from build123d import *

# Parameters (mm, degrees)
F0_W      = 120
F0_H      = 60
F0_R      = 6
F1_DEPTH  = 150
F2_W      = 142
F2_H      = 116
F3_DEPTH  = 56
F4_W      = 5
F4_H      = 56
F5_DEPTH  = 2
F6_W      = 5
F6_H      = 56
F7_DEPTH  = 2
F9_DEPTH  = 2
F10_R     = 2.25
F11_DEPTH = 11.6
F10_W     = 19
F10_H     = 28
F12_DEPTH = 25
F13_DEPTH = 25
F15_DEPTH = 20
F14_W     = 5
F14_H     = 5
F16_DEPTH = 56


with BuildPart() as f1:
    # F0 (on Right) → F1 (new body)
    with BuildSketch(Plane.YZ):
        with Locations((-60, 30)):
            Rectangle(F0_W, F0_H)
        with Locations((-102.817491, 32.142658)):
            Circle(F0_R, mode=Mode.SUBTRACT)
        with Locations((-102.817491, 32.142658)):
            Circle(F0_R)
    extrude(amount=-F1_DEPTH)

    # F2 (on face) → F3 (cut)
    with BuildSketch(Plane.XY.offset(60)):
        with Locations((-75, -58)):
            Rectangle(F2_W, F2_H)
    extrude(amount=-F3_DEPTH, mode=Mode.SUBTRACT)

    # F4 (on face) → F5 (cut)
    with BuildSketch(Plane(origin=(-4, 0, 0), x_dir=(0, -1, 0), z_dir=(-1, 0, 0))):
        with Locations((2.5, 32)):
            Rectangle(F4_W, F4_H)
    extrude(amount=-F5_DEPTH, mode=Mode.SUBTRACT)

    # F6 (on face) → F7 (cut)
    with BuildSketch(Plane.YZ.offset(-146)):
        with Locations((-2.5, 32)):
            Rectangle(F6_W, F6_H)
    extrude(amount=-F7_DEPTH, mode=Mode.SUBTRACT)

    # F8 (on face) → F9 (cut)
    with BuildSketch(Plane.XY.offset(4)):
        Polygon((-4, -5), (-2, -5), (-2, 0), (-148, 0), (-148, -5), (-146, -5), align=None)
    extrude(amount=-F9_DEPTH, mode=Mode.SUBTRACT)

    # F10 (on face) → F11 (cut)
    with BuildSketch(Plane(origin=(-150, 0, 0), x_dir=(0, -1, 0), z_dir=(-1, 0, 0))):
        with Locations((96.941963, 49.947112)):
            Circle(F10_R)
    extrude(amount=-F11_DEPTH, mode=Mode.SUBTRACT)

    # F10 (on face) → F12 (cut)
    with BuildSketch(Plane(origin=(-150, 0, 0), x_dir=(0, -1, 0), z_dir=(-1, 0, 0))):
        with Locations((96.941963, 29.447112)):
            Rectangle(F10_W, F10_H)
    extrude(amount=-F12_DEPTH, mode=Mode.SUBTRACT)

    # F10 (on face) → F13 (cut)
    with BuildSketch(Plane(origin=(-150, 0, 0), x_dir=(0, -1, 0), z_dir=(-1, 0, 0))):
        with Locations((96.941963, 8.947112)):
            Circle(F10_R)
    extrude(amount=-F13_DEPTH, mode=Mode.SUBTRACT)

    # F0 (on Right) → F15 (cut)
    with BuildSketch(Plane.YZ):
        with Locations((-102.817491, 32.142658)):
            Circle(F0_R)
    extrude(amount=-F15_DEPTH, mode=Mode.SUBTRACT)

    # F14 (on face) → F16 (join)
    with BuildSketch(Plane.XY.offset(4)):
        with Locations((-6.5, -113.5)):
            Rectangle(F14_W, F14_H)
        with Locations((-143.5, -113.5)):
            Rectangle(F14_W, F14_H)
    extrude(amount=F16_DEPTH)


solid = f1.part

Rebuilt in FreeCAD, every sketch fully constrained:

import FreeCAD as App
import Part
import Sketcher
from FreeCAD import Vector
Q = App.Units.Quantity


def add_polygon(sketch, points):
    """Adds a closed chain of lines whose ends are joined by coincident constraints."""
    first, n = sketch.GeometryCount, len(points)
    for a, b in zip(points, points[1:] + points[:1]):
        sketch.addGeometry(Part.LineSegment(App.Vector(*a, 0), App.Vector(*b, 0)), False)
    for i in range(n):
        sketch.addConstraint(Sketcher.Constraint("Coincident", first + i, 2, first + (i + 1) % n, 1))

doc = App.newDocument("Part")
params = doc.addObject("Spreadsheet::Sheet", "Params")
for row, (alias, value) in enumerate([
    ("sketch1_width", "120 mm"),
    ("sketch1_height", "60 mm"),
    ("pad1_length", "150 mm"),
    ("sketch2_width", "142 mm"),
    ("sketch2_height", "116 mm"),
    ("pocket1_length", "56 mm"),
    ("sketch3_width", "5 mm"),
    ("sketch3_height", "56 mm"),
    ("pocket2_length", "2 mm"),
    ("sketch4_width", "5 mm"),
    ("sketch4_height", "56 mm"),
    ("pocket3_length", "2 mm"),
    ("sketch5_width", "146 mm"),
    ("sketch5_height", "5 mm"),
    ("pocket4_length", "2 mm"),
    ("sketch6_diameter", "4.5 mm"),
    ("pocket5_length", "11.6 mm"),
    ("sketch7_width", "19 mm"),
    ("sketch7_height", "28 mm"),
    ("pocket6_length", "25 mm"),
    ("sketch8_diameter", "4.5 mm"),
    ("pocket7_length", "25 mm"),
    ("sketch9_diameter", "12 mm"),
    ("pocket8_length", "20 mm"),
    ("sketch10_width", "5 mm"),
    ("pad2_length", "56 mm"),
], start=1):
    params.set(f"A{row}", alias)
    params.set(f"B{row}", "=" + value)
    params.setAlias(f"B{row}", alias)

body = doc.addObject("PartDesign::Body", "Body")

# Sketch on YZ plane
sketch1 = doc.addObject("Sketcher::SketchObject", "Sketch")
body.addObject(sketch1)
sketch1.AttachmentSupport = (doc.YZ_Plane, [""])
sketch1.MapMode = "FlatFace"
add_polygon(sketch1, [(-120, 60), (-120, 0), (0, 0), (0, 60)])  # lines 0-3
sketch1.addConstraint(Sketcher.Constraint("Vertical", 0))
sketch1.addConstraint(Sketcher.Constraint("Horizontal", 1))
sketch1.addConstraint(Sketcher.Constraint("Vertical", 2))
sketch1.addConstraint(Sketcher.Constraint("Horizontal", 3))
sketch1.addConstraint(Sketcher.Constraint("Coincident", 1, 2, -1, 1))
sketch1.addConstraint(Sketcher.Constraint("DistanceX", 1, 1, 1, 2, Q("120 mm")))
sketch1.addConstraint(Sketcher.Constraint("DistanceY", 0, 2, 0, 1, Q("60 mm")))
sketch1.setExpression("Constraints[9]", "Params.sketch1_width")
sketch1.setExpression("Constraints[10]", "Params.sketch1_height")
pad1 = doc.addObject("PartDesign::Pad", "Pad")
body.addObject(pad1)
pad1.Profile = sketch1
pad1.setExpression("Length", "Params.pad1_length")
pad1.Reversed = True

# Sketch on XY plane
sketch2 = doc.addObject("Sketcher::SketchObject", "Sketch001")
body.addObject(sketch2)
sketch2.AttachmentSupport = (doc.XY_Plane, [""])
sketch2.MapMode = "FlatFace"
sketch2.AttachmentOffset = App.Placement(Vector(0, 0, 60), App.Rotation())
add_polygon(sketch2, [(-146, 0), (-146, -116), (-4, -116), (-4, 0)])  # lines 0-3
sketch2.addConstraint(Sketcher.Constraint("Vertical", 0))
sketch2.addConstraint(Sketcher.Constraint("Horizontal", 1))
sketch2.addConstraint(Sketcher.Constraint("Vertical", 2))
sketch2.addConstraint(Sketcher.Constraint("Horizontal", 3))
sketch2.addConstraint(Sketcher.Constraint("PointOnObject", 2, 2, -1))
sketch2.addConstraint(Sketcher.Constraint("DistanceX", 1, 1, 1, 2, Q("142 mm")))
sketch2.addConstraint(Sketcher.Constraint("DistanceY", 0, 2, 0, 1, Q("116 mm")))
sketch2.addConstraint(Sketcher.Constraint("DistanceX", 0, 2, -1, 1, Q("146 mm")))
sketch2.setExpression("Constraints[9]", "Params.sketch2_width")
sketch2.setExpression("Constraints[10]", "Params.sketch2_height")
pocket1 = doc.addObject("PartDesign::Pocket", "Pocket")
body.addObject(pocket1)
pocket1.Profile = sketch2
pocket1.setExpression("Length", "Params.pocket1_length")

# Sketch on YZ plane
sketch3 = doc.addObject("Sketcher::SketchObject", "Sketch002")
body.addObject(sketch3)
sketch3.AttachmentSupport = (doc.YZ_Plane, [""])
sketch3.MapMode = "FlatFace"
sketch3.AttachmentOffset = App.Placement(Vector(0, 0, -4), App.Rotation())
add_polygon(sketch3, [(0, 60), (0, 4), (-5, 4), (-5, 60)])  # lines 0-3
sketch3.addConstraint(Sketcher.Constraint("Vertical", 0))
sketch3.addConstraint(Sketcher.Constraint("Horizontal", 1))
sketch3.addConstraint(Sketcher.Constraint("Vertical", 2))
sketch3.addConstraint(Sketcher.Constraint("Horizontal", 3))
sketch3.addConstraint(Sketcher.Constraint("PointOnObject", 0, 2, -2))
sketch3.addConstraint(Sketcher.Constraint("DistanceX", 1, 2, 1, 1, Q("5 mm")))
sketch3.addConstraint(Sketcher.Constraint("DistanceY", 0, 2, 0, 1, Q("56 mm")))
sketch3.addConstraint(Sketcher.Constraint("DistanceY", -1, 1, 0, 2, Q("4 mm")))
sketch3.setExpression("Constraints[9]", "Params.sketch3_width")
sketch3.setExpression("Constraints[10]", "Params.sketch3_height")
pocket2 = doc.addObject("PartDesign::Pocket", "Pocket001")
body.addObject(pocket2)
pocket2.Profile = sketch3
pocket2.setExpression("Length", "Params.pocket2_length")
pocket2.Reversed = True

# Sketch on YZ plane
sketch4 = doc.addObject("Sketcher::SketchObject", "Sketch003")
body.addObject(sketch4)
sketch4.AttachmentSupport = (doc.YZ_Plane, [""])
sketch4.MapMode = "FlatFace"
sketch4.AttachmentOffset = App.Placement(Vector(0, 0, -146), App.Rotation())
add_polygon(sketch4, [(-5, 60), (-5, 4), (0, 4), (0, 60)])  # lines 0-3
sketch4.addConstraint(Sketcher.Constraint("Vertical", 0))
sketch4.addConstraint(Sketcher.Constraint("Horizontal", 1))
sketch4.addConstraint(Sketcher.Constraint("Vertical", 2))
sketch4.addConstraint(Sketcher.Constraint("Horizontal", 3))
sketch4.addConstraint(Sketcher.Constraint("PointOnObject", 1, 2, -2))
sketch4.addConstraint(Sketcher.Constraint("DistanceX", 1, 1, 1, 2, Q("5 mm")))
sketch4.addConstraint(Sketcher.Constraint("DistanceY", 0, 2, 0, 1, Q("56 mm")))
sketch4.addConstraint(Sketcher.Constraint("DistanceY", -1, 1, 0, 2, Q("4 mm")))
sketch4.setExpression("Constraints[9]", "Params.sketch4_width")
sketch4.setExpression("Constraints[10]", "Params.sketch4_height")
pocket3 = doc.addObject("PartDesign::Pocket", "Pocket002")
body.addObject(pocket3)
pocket3.Profile = sketch4
pocket3.setExpression("Length", "Params.pocket3_length")

# Sketch on XY plane
sketch5 = doc.addObject("Sketcher::SketchObject", "Sketch004")
body.addObject(sketch5)
sketch5.AttachmentSupport = (doc.XY_Plane, [""])
sketch5.MapMode = "FlatFace"
sketch5.AttachmentOffset = App.Placement(Vector(0, 0, 4), App.Rotation())
add_polygon(sketch5, [(-2, -5), (-2, 0), (-148, 0), (-148, -5)])  # lines 0-3
sketch5.addConstraint(Sketcher.Constraint("Vertical", 0))
sketch5.addConstraint(Sketcher.Constraint("Horizontal", 1))
sketch5.addConstraint(Sketcher.Constraint("Vertical", 2))
sketch5.addConstraint(Sketcher.Constraint("Horizontal", 3))
sketch5.addConstraint(Sketcher.Constraint("PointOnObject", 0, 2, -1))
sketch5.addConstraint(Sketcher.Constraint("DistanceX", 1, 2, 1, 1, Q("146 mm")))
sketch5.addConstraint(Sketcher.Constraint("DistanceY", 0, 1, 0, 2, Q("5 mm")))
sketch5.addConstraint(Sketcher.Constraint("DistanceX", 0, 2, -1, 1, Q("2 mm")))
sketch5.setExpression("Constraints[9]", "Params.sketch5_width")
sketch5.setExpression("Constraints[10]", "Params.sketch5_height")
pocket4 = doc.addObject("PartDesign::Pocket", "Pocket003")
body.addObject(pocket4)
pocket4.Profile = sketch5
pocket4.setExpression("Length", "Params.pocket4_length")

# Sketch on YZ plane
sketch6 = doc.addObject("Sketcher::SketchObject", "Sketch005")
body.addObject(sketch6)
sketch6.AttachmentSupport = (doc.YZ_Plane, [""])
sketch6.MapMode = "FlatFace"
sketch6.AttachmentOffset = App.Placement(Vector(0, 0, -150), App.Rotation())
sketch6.addGeometry(Part.Circle(Vector(-96.941963, 49.947112, 0), Vector(0, 0, 1), 2.25), False)
sketch6.addConstraint(Sketcher.Constraint("Diameter", 0, Q("4.5 mm")))
sketch6.addConstraint(Sketcher.Constraint("DistanceY", -1, 1, 0, 3, Q("49.947112 mm")))
sketch6.addConstraint(Sketcher.Constraint("DistanceX", 0, 3, -1, 1, Q("96.941963 mm")))
sketch6.setExpression("Constraints[0]", "Params.sketch6_diameter")
pocket5 = doc.addObject("PartDesign::Pocket", "Pocket004")
body.addObject(pocket5)
pocket5.Profile = sketch6
pocket5.setExpression("Length", "Params.pocket5_length")
pocket5.Reversed = True

# Sketch on YZ plane
sketch7 = doc.addObject("Sketcher::SketchObject", "Sketch006")
body.addObject(sketch7)
sketch7.AttachmentSupport = (doc.YZ_Plane, [""])
sketch7.MapMode = "FlatFace"
sketch7.AttachmentOffset = App.Placement(Vector(0, 0, -150), App.Rotation())
add_polygon(sketch7, [(-87.441963, 43.447112), (-87.441963, 15.447112), (-106.441963, 15.447112), (-106.441963, 43.447112)])  # lines 0-3
sketch7.addConstraint(Sketcher.Constraint("Vertical", 0))
sketch7.addConstraint(Sketcher.Constraint("Horizontal", 1))
sketch7.addConstraint(Sketcher.Constraint("Vertical", 2))
sketch7.addConstraint(Sketcher.Constraint("Horizontal", 3))
sketch7.addConstraint(Sketcher.Constraint("DistanceX", 1, 2, 1, 1, Q("19 mm")))
sketch7.addConstraint(Sketcher.Constraint("DistanceY", 0, 2, 0, 1, Q("28 mm")))
sketch7.addConstraint(Sketcher.Constraint("DistanceY", -1, 1, 2, 2, Q("43.447112 mm")))
sketch7.addConstraint(Sketcher.Constraint("DistanceX", 0, 2, -1, 1, Q("87.441963 mm")))
sketch7.setExpression("Constraints[8]", "Params.sketch7_width")
sketch7.setExpression("Constraints[9]", "Params.sketch7_height")
pocket6 = doc.addObject("PartDesign::Pocket", "Pocket005")
body.addObject(pocket6)
pocket6.Profile = sketch7
pocket6.setExpression("Length", "Params.pocket6_length")
pocket6.Reversed = True

# Sketch on YZ plane
sketch8 = doc.addObject("Sketcher::SketchObject", "Sketch007")
body.addObject(sketch8)
sketch8.AttachmentSupport = (doc.YZ_Plane, [""])
sketch8.MapMode = "FlatFace"
sketch8.AttachmentOffset = App.Placement(Vector(0, 0, -150), App.Rotation())
sketch8.addGeometry(Part.Circle(Vector(-96.941963, 8.947112, 0), Vector(0, 0, 1), 2.25), False)
sketch8.addConstraint(Sketcher.Constraint("Diameter", 0, Q("4.5 mm")))
sketch8.addConstraint(Sketcher.Constraint("DistanceX", 0, 3, -1, 1, Q("96.941963 mm")))
sketch8.addConstraint(Sketcher.Constraint("DistanceY", -1, 1, 0, 3, Q("8.947112 mm")))
sketch8.setExpression("Constraints[0]", "Params.sketch8_diameter")
pocket7 = doc.addObject("PartDesign::Pocket", "Pocket006")
body.addObject(pocket7)
pocket7.Profile = sketch8
pocket7.setExpression("Length", "Params.pocket7_length")
pocket7.Reversed = True

# Sketch on YZ plane
sketch9 = doc.addObject("Sketcher::SketchObject", "Sketch008")
body.addObject(sketch9)
sketch9.AttachmentSupport = (doc.YZ_Plane, [""])
sketch9.MapMode = "FlatFace"
sketch9.addGeometry(Part.Circle(Vector(-102.817491, 32.142658, 0), Vector(0, 0, 1), 6), False)
sketch9.addConstraint(Sketcher.Constraint("Diameter", 0, Q("12 mm")))
sketch9.addConstraint(Sketcher.Constraint("DistanceX", 0, 3, -1, 1, Q("102.817491 mm")))
sketch9.addConstraint(Sketcher.Constraint("DistanceY", -1, 1, 0, 3, Q("32.142658 mm")))
sketch9.setExpression("Constraints[0]", "Params.sketch9_diameter")
pocket8 = doc.addObject("PartDesign::Pocket", "Pocket007")
body.addObject(pocket8)
pocket8.Profile = sketch9
pocket8.setExpression("Length", "Params.pocket8_length")

# Sketch on XY plane
sketch10 = doc.addObject("Sketcher::SketchObject", "Sketch009")
body.addObject(sketch10)
sketch10.AttachmentSupport = (doc.XY_Plane, [""])
sketch10.MapMode = "FlatFace"
sketch10.AttachmentOffset = App.Placement(Vector(0, 0, 4), App.Rotation())
add_polygon(sketch10, [(-9, -111), (-9, -116), (-4, -116), (-4, -111)])  # lines 0-3
add_polygon(sketch10, [(-146, -111), (-146, -116), (-141, -116), (-141, -111)])  # lines 4-7
sketch10.addConstraint(Sketcher.Constraint("Vertical", 0))
sketch10.addConstraint(Sketcher.Constraint("Horizontal", 1))
sketch10.addConstraint(Sketcher.Constraint("Vertical", 2))
sketch10.addConstraint(Sketcher.Constraint("Horizontal", 3))
sketch10.addConstraint(Sketcher.Constraint("Vertical", 4))
sketch10.addConstraint(Sketcher.Constraint("Horizontal", 5))
sketch10.addConstraint(Sketcher.Constraint("Vertical", 6))
sketch10.addConstraint(Sketcher.Constraint("Horizontal", 7))
sketch10.addConstraint(Sketcher.Constraint("Horizontal", 1, 2, 4, 2))
sketch10.addConstraint(Sketcher.Constraint("Horizontal", 3, 2, 6, 2))
sketch10.addConstraint(Sketcher.Constraint("Equal", 3, 5))
sketch10.addConstraint(Sketcher.Constraint("Equal", 7, 0))
sketch10.addConstraint(Sketcher.Constraint("DistanceX", 1, 1, 1, 2, Q("5 mm")))
sketch10.addConstraint(Sketcher.Constraint("DistanceX", 0, 2, -1, 1, Q("9 mm")))
sketch10.addConstraint(Sketcher.Constraint("DistanceY", 0, 2, -1, 1, Q("116 mm")))
sketch10.addConstraint(Sketcher.Constraint("DistanceX", 4, 2, -1, 1, Q("146 mm")))
sketch10.setExpression("Constraints[20]", "Params.sketch10_width")
pad2 = doc.addObject("PartDesign::Pad", "Pad001")
body.addObject(pad2)
pad2.Profile = sketch10
pad2.setExpression("Length", "Params.pad2_length")

doc.recompute()
